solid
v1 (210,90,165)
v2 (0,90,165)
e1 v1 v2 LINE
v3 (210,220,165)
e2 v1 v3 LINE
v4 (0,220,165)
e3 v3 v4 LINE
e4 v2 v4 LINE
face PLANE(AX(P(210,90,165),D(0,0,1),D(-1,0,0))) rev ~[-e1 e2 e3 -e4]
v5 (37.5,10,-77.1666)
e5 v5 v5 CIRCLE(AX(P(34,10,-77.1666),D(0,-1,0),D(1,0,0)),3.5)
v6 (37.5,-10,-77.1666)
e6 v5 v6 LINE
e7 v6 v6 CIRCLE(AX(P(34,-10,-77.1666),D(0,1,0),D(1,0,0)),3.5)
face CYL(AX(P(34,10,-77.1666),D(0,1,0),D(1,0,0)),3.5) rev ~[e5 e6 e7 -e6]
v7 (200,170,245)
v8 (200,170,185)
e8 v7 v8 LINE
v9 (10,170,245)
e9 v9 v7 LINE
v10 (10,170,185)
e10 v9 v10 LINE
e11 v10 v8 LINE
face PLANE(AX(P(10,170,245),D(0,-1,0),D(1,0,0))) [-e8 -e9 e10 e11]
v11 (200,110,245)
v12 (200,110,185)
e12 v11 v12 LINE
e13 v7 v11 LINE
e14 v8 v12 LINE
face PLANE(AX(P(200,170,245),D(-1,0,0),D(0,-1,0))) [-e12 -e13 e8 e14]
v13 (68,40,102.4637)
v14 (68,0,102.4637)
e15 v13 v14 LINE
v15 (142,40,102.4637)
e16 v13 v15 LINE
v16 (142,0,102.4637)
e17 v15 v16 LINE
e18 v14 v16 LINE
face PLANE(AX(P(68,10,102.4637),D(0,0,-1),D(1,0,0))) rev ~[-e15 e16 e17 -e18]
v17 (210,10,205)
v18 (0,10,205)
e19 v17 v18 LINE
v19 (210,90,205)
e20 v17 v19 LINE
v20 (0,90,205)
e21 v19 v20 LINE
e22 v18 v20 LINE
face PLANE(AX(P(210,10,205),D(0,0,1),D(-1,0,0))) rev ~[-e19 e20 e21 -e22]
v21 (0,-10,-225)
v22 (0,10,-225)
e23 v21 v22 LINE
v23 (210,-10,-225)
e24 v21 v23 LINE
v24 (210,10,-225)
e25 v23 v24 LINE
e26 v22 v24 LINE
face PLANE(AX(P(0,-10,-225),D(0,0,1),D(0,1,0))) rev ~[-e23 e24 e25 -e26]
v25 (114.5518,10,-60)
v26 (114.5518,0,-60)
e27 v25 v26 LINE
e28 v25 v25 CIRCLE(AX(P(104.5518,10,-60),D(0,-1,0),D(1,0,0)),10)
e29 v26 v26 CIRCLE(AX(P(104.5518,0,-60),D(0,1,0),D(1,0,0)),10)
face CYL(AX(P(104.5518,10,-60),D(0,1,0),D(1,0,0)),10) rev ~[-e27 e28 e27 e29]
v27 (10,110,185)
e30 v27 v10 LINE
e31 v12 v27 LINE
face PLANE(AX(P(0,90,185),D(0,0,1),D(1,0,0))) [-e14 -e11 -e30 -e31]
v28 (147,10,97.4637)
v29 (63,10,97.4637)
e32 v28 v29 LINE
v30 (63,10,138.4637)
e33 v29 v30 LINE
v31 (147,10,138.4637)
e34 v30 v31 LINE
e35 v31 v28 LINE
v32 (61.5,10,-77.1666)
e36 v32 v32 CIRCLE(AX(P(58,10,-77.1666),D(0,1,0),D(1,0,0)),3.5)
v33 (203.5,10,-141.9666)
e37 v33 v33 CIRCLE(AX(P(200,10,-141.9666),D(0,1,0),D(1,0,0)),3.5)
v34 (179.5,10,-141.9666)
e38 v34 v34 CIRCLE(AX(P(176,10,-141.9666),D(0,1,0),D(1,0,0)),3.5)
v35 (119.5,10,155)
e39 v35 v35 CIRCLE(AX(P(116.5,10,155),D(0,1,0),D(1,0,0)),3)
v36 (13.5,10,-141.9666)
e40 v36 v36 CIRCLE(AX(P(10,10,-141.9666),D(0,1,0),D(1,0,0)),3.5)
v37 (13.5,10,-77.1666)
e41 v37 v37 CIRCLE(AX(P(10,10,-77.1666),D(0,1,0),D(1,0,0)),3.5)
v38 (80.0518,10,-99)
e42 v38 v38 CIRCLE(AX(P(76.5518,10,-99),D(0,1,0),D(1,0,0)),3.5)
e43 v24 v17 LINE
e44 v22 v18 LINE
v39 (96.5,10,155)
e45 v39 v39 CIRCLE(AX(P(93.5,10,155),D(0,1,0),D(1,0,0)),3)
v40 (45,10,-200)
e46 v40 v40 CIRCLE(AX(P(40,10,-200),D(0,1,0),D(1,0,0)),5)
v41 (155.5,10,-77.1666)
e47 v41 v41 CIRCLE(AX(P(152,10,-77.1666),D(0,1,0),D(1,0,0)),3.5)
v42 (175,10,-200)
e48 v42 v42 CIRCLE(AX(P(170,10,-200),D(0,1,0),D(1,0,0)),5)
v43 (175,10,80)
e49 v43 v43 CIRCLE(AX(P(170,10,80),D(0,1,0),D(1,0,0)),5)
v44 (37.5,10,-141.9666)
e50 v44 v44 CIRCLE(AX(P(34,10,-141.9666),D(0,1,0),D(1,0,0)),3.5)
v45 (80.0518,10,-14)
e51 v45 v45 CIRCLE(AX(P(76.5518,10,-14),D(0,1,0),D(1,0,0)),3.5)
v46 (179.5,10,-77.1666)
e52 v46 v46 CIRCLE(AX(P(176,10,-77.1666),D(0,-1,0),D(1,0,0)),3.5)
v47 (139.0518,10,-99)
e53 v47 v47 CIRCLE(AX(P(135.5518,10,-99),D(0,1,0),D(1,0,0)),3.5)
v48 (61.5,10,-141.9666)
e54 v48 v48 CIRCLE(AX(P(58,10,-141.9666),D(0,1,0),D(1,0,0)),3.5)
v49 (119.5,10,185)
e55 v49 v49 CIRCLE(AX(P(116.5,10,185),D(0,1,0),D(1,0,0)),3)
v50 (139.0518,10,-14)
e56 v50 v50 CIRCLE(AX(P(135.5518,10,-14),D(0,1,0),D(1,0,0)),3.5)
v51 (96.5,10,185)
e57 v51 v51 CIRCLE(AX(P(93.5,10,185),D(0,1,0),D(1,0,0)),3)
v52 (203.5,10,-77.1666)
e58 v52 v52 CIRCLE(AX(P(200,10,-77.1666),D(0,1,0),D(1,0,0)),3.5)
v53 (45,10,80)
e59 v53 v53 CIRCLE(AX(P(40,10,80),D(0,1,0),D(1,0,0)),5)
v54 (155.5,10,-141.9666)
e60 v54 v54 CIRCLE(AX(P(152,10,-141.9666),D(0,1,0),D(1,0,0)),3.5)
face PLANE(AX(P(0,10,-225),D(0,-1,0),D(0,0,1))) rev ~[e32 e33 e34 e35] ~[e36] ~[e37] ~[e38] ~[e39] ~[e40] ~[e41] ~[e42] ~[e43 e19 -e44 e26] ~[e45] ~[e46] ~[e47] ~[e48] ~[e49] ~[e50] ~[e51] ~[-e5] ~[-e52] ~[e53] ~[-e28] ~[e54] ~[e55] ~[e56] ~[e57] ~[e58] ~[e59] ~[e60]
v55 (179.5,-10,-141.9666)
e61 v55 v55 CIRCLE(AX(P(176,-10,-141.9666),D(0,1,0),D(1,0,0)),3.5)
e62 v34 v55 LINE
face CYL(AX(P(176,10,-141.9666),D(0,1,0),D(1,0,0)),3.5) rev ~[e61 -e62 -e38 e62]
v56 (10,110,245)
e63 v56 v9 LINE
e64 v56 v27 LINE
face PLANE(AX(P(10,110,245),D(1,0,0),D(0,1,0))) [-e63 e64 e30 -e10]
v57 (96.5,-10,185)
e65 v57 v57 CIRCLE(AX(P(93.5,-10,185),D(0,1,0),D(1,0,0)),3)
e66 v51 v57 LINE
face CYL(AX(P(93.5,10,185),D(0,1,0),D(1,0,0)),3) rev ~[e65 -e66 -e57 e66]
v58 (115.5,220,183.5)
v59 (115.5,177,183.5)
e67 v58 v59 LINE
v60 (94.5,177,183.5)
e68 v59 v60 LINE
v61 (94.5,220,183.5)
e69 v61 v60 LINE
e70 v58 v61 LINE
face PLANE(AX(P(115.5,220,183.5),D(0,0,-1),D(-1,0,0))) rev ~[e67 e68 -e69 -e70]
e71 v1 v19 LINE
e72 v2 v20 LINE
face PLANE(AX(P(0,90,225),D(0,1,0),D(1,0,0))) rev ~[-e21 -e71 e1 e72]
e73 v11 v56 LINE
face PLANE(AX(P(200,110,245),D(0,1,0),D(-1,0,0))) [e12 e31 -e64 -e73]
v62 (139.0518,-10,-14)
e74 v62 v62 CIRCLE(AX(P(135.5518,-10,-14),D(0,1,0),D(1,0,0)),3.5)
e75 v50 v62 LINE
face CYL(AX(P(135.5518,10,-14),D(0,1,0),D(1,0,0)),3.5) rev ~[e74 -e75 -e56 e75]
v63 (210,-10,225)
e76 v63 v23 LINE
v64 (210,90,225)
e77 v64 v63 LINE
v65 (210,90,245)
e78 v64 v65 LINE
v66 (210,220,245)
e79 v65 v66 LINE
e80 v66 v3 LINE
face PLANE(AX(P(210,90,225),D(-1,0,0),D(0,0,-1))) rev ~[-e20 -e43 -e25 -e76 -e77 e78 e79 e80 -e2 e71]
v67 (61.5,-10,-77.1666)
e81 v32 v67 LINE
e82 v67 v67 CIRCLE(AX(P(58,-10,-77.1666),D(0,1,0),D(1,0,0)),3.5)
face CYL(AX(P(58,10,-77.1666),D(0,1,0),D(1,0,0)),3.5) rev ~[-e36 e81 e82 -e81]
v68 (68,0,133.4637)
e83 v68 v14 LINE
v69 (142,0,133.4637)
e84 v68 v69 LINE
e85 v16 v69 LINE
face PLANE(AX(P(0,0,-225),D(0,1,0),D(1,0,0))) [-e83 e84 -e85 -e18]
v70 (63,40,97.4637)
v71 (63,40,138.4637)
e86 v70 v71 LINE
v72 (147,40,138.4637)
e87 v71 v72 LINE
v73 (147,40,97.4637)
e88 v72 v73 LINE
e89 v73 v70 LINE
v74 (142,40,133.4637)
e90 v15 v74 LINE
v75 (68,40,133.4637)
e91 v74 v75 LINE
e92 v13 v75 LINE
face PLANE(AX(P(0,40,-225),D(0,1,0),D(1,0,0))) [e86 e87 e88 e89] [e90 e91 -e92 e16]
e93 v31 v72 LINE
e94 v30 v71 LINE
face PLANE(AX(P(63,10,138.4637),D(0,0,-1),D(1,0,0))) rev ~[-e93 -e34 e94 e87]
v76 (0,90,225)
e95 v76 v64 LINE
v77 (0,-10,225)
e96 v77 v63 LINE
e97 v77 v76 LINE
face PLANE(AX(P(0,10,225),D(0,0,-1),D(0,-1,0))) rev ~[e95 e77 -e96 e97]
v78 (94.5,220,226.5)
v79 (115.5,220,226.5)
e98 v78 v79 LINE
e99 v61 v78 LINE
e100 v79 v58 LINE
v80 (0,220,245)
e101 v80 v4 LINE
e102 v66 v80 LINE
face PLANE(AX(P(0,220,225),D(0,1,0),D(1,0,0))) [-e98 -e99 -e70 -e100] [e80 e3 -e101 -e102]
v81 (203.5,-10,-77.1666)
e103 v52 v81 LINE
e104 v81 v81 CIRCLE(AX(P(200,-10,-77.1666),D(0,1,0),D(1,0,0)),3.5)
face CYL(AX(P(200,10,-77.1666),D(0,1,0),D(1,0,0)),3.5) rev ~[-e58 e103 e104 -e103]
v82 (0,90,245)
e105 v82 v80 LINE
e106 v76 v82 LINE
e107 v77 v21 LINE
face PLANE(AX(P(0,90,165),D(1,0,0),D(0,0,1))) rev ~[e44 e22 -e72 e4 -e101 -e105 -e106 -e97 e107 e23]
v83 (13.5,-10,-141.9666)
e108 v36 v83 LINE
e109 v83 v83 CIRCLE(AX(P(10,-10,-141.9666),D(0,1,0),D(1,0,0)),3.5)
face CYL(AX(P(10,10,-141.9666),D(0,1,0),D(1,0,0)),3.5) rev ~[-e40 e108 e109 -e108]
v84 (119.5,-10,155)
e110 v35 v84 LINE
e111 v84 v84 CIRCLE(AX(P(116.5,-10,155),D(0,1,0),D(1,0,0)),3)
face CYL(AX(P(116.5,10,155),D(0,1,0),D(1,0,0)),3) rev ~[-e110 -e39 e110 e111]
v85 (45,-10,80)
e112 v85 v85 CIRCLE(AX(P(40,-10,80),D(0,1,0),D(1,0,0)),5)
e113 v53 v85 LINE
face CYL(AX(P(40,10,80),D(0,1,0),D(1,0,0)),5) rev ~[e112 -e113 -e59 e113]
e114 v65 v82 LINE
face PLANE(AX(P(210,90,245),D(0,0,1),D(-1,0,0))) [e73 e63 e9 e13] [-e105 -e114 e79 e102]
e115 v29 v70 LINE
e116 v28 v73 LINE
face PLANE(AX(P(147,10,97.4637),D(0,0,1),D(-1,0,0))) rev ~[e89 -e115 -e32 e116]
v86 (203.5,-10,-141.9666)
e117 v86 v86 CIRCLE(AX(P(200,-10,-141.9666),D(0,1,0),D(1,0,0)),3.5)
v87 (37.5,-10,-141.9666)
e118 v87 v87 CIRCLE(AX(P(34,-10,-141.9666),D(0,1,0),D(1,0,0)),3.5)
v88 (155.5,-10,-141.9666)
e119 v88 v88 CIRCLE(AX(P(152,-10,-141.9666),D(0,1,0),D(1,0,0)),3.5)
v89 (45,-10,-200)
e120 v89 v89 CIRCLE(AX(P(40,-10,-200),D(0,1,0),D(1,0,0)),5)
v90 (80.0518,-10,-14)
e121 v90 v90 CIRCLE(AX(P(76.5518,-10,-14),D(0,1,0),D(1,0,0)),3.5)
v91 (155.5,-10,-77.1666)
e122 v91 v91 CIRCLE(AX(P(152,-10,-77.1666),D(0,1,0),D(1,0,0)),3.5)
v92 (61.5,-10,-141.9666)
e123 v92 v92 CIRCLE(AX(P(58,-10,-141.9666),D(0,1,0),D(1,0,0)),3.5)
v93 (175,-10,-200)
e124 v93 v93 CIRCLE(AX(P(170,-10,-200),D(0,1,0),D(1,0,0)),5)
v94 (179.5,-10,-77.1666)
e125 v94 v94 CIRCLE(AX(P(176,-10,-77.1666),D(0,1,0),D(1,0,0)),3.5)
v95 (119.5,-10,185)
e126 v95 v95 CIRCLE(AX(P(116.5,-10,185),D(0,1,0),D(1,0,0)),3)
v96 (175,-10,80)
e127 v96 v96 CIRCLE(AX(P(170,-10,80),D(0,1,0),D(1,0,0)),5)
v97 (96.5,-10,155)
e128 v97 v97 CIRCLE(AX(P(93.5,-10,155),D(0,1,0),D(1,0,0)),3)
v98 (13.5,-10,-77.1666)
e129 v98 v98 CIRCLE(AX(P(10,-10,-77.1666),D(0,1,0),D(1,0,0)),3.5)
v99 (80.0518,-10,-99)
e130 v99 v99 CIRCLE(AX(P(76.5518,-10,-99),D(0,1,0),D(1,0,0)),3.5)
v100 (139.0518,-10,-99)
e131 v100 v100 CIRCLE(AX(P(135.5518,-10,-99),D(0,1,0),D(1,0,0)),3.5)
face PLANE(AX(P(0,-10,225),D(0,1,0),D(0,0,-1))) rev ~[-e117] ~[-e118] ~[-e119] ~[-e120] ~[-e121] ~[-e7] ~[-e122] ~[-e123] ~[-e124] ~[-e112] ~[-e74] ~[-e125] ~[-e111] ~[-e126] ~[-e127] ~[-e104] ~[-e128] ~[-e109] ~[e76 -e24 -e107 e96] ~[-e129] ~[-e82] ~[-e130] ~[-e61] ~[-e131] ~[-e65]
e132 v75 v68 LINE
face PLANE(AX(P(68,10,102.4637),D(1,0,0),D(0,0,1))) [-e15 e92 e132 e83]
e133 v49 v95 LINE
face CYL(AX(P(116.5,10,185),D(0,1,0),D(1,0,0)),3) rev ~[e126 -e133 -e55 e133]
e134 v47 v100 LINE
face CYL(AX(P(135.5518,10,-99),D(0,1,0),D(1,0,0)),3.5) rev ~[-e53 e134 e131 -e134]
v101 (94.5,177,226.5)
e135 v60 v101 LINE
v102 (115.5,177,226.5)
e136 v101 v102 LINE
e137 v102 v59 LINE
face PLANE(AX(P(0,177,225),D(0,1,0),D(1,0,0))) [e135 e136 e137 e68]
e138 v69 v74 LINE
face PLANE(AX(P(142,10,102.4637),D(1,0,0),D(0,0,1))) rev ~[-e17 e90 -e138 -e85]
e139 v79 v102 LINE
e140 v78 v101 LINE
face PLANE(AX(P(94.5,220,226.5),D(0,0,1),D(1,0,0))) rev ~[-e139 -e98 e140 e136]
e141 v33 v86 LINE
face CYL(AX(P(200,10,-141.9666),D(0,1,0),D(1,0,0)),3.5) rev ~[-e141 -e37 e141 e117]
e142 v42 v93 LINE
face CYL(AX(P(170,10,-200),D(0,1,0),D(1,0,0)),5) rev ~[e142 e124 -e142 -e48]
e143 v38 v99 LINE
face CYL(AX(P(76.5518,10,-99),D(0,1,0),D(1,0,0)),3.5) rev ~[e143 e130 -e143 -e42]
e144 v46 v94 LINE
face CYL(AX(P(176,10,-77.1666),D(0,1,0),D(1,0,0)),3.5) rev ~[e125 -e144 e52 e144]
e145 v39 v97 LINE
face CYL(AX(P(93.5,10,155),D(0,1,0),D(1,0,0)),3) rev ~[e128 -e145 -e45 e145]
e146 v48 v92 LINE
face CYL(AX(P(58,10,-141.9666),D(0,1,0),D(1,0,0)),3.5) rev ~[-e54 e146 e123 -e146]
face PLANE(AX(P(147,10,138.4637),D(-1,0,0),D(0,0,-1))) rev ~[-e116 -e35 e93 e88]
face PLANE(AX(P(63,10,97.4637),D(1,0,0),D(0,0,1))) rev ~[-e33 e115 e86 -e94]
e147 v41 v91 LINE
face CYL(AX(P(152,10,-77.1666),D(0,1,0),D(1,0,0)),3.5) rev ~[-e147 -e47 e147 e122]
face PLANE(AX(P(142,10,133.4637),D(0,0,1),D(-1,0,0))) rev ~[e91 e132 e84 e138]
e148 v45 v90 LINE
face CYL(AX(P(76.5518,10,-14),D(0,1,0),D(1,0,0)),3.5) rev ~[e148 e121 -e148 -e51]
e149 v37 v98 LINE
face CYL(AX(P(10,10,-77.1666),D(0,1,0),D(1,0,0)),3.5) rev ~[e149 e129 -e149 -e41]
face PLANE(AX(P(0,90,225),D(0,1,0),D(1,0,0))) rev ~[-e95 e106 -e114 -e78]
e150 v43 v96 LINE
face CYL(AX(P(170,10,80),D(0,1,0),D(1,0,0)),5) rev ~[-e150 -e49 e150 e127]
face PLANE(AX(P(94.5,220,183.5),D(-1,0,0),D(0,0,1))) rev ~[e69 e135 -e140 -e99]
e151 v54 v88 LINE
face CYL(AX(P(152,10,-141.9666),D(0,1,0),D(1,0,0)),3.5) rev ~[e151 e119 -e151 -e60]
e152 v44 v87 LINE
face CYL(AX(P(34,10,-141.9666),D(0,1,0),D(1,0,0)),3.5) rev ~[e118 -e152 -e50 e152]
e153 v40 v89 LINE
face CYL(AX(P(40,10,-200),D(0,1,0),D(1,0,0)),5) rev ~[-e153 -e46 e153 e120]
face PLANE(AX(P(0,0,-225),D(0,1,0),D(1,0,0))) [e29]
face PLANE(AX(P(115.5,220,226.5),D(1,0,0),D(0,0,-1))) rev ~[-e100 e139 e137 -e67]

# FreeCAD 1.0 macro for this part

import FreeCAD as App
import Part
import Sketcher

V = App.Vector

doc = App.newDocument("Part")
params = doc.addObject("Spreadsheet::Sheet", "Params")
for row, (alias, value) in enumerate([
    ("sketch1_width", "20 mm"),
    ("sketch1_height", "450 mm"),
    ("pad1_length", "210 mm"),
    ("sketch2_height", "20 mm"),
    ("sketch2_width", "210 mm"),
    ("pad2_length", "80 mm"),
    ("sketch3_width", "210 mm"),
    ("sketch3_height", "80 mm"),
    ("pad3_length", "130 mm"),
    ("sketch4_width", "190 mm"),
    ("sketch4_height", "60 mm"),
    ("pocket1_length", "60 mm"),
    ("sketch5_width", "21 mm"),
    ("sketch5_height", "43 mm"),
    ("pocket2_length", "43 mm"),
    ("sketch6_diameter", "10 mm"),
    ("pocket3_length", "43 mm"),
    ("sketch7_diameter", "20 mm"),
    ("pocket4_length", "10 mm"),
    ("sketch8_diameter", "7 mm"),
    ("pocket5_length", "20 mm"),
    ("sketch9_diameter", "6 mm"),
    ("pocket6_length", "20 mm"),
    ("sketch10_width", "74 mm"),
    ("sketch10_height", "31 mm"),
    ("pocket7_length", "10 mm"),
    ("sketch11_width", "84 mm"),
    ("sketch11_height", "41 mm"),
    ("sketch11_width2", "74 mm"),
    ("sketch11_height2", "31 mm"),
    ("pad4_length", "30 mm"),
    ("sketch12_diameter", "7 mm"),
    ("pocket8_length", "30 mm"),
], start=1):
    params.set(f"A{row}", alias)
    params.set(f"B{row}", "=" + value)
    params.setAlias(f"B{row}", alias)

body = doc.addObject("PartDesign::Body", "Body")

# Sketch on YZ plane
sketch1 = doc.addObject("Sketcher::SketchObject", "Sketch")
body.addObject(sketch1)
sketch1.AttachmentSupport = (doc.YZ_Plane, [""])
sketch1.MapMode = "FlatFace"
sketch1.addGeometry([
    Part.LineSegment(V(10, -225, 0), V(10, 225, 0)),
    Part.LineSegment(V(10, 225, 0), V(-10, 225, 0)),
    Part.LineSegment(V(-10, 225, 0), V(-10, -225, 0)),
    Part.LineSegment(V(-10, -225, 0), V(10, -225, 0)),
], False)
sketch1.addConstraint([
    Sketcher.Constraint("Coincident", 0, 2, 1, 1),
    Sketcher.Constraint("Coincident", 1, 2, 2, 1),
    Sketcher.Constraint("Coincident", 2, 2, 3, 1),
    Sketcher.Constraint("Coincident", 3, 2, 0, 1),
    Sketcher.Constraint("Vertical", 0),
    Sketcher.Constraint("Horizontal", 1),
    Sketcher.Constraint("Vertical", 2),
    Sketcher.Constraint("Horizontal", 3),
    Sketcher.Constraint("Symmetric", 0, 2, 2, 2, -1, 1),
    Sketcher.Constraint("DistanceX", 1, 2, 1, 1, 20.0),
    Sketcher.Constraint("DistanceY", 0, 1, 0, 2, 450.0),
])
sketch1.setExpression("Constraints[9]", "Params.sketch1_width")
sketch1.setExpression("Constraints[10]", "Params.sketch1_height")
pad1 = doc.addObject("PartDesign::Pad", "Pad")
body.addObject(pad1)
pad1.Profile = sketch1
pad1.setExpression("Length", "Params.pad1_length")

# Sketch on XZ plane
sketch2 = doc.addObject("Sketcher::SketchObject", "Sketch001")
body.addObject(sketch2)
sketch2.AttachmentSupport = (doc.XZ_Plane, [""])
sketch2.MapMode = "FlatFace"
sketch2.AttachmentOffset = App.Placement(V(0, 0, -10), App.Rotation())
sketch2.addGeometry([
    Part.LineSegment(V(0, 205, 0), V(0, 225, 0)),
    Part.LineSegment(V(0, 225, 0), V(210, 225, 0)),
    Part.LineSegment(V(210, 225, 0), V(210, 205, 0)),
    Part.LineSegment(V(210, 205, 0), V(0, 205, 0)),
], False)
sketch2.addConstraint([
    Sketcher.Constraint("Coincident", 0, 2, 1, 1),
    Sketcher.Constraint("Coincident", 1, 2, 2, 1),
    Sketcher.Constraint("Coincident", 2, 2, 3, 1),
    Sketcher.Constraint("Coincident", 3, 2, 0, 1),
    Sketcher.Constraint("Vertical", 0),
    Sketcher.Constraint("Horizontal", 1),
    Sketcher.Constraint("Vertical", 2),
    Sketcher.Constraint("Horizontal", 3),
    Sketcher.Constraint("PointOnObject", 0, 2, -2),
    Sketcher.Constraint("DistanceY", 0, 1, 0, 2, 20.0),
    Sketcher.Constraint("DistanceX", 1, 1, 1, 2, 210.0),
    Sketcher.Constraint("DistanceY", -1, 1, 0, 2, 225.0),
])
sketch2.setExpression("Constraints[9]", "Params.sketch2_height")
sketch2.setExpression("Constraints[10]", "Params.sketch2_width")
pad2 = doc.addObject("PartDesign::Pad", "Pad001")
body.addObject(pad2)
pad2.Profile = sketch2
pad2.setExpression("Length", "Params.pad2_length")
pad2.Reversed = True

# Sketch on XZ plane
sketch3 = doc.addObject("Sketcher::SketchObject", "Sketch002")
body.addObject(sketch3)
sketch3.AttachmentSupport = (doc.XZ_Plane, [""])
sketch3.MapMode = "FlatFace"
sketch3.AttachmentOffset = App.Placement(V(0, 0, -90), App.Rotation())
sketch3.addGeometry([
    Part.LineSegment(V(0, 165, 0), V(0, 245, 0)),
    Part.LineSegment(V(0, 245, 0), V(210, 245, 0)),
    Part.LineSegment(V(210, 245, 0), V(210, 165, 0)),
    Part.LineSegment(V(210, 165, 0), V(0, 165, 0)),
], False)
sketch3.addConstraint([
    Sketcher.Constraint("Coincident", 0, 2, 1, 1),
    Sketcher.Constraint("Coincident", 1, 2, 2, 1),
    Sketcher.Constraint("Coincident", 2, 2, 3, 1),
    Sketcher.Constraint("Coincident", 3, 2, 0, 1),
    Sketcher.Constraint("Vertical", 0),
    Sketcher.Constraint("Horizontal", 1),
    Sketcher.Constraint("Vertical", 2),
    Sketcher.Constraint("Horizontal", 3),
    Sketcher.Constraint("PointOnObject", 0, 2, -2),
    Sketcher.Constraint("DistanceX", 1, 1, 1, 2, 210.0),
    Sketcher.Constraint("DistanceY", 0, 1, 0, 2, 80.0),
    Sketcher.Constraint("DistanceY", -1, 1, 0, 2, 245.0),
])
sketch3.setExpression("Constraints[9]", "Params.sketch3_width")
sketch3.setExpression("Constraints[10]", "Params.sketch3_height")
pad3 = doc.addObject("PartDesign::Pad", "Pad002")
body.addObject(pad3)
pad3.Profile = sketch3
pad3.setExpression("Length", "Params.pad3_length")
pad3.Reversed = True

# Sketch on XY plane
sketch4 = doc.addObject("Sketcher::SketchObject", "Sketch003")
body.addObject(sketch4)
sketch4.AttachmentSupport = (doc.XY_Plane, [""])
sketch4.MapMode = "FlatFace"
sketch4.AttachmentOffset = App.Placement(V(0, 0, 245), App.Rotation())
sketch4.addGeometry([
    Part.LineSegment(V(200, 170, 0), V(10, 170, 0)),
    Part.LineSegment(V(10, 170, 0), V(10, 110, 0)),
    Part.LineSegment(V(10, 110, 0), V(200, 110, 0)),
    Part.LineSegment(V(200, 110, 0), V(200, 170, 0)),
], False)
sketch4.addConstraint([
    Sketcher.Constraint("Coincident", 0, 2, 1, 1),
    Sketcher.Constraint("Coincident", 1, 2, 2, 1),
    Sketcher.Constraint("Coincident", 2, 2, 3, 1),
    Sketcher.Constraint("Coincident", 3, 2, 0, 1),
    Sketcher.Constraint("Horizontal", 0),
    Sketcher.Constraint("Vertical", 1),
    Sketcher.Constraint("Horizontal", 2),
    Sketcher.Constraint("Vertical", 3),
    Sketcher.Constraint("DistanceX", 0, 2, 0, 1, 190.0),
    Sketcher.Constraint("DistanceY", 1, 2, 1, 1, 60.0),
    Sketcher.Constraint("DistanceX", -1, 1, 0, 2, 10.0),
    Sketcher.Constraint("DistanceY", -1, 1, 0, 2, 170.0),
])
sketch4.setExpression("Constraints[8]", "Params.sketch4_width")
sketch4.setExpression("Constraints[9]", "Params.sketch4_height")
pocket1 = doc.addObject("PartDesign::Pocket", "Pocket")
body.addObject(pocket1)
pocket1.Profile = sketch4
pocket1.setExpression("Length", "Params.pocket1_length")

# Sketch on XZ plane
sketch5 = doc.addObject("Sketcher::SketchObject", "Sketch004")
body.addObject(sketch5)
sketch5.AttachmentSupport = (doc.XZ_Plane, [""])
sketch5.MapMode = "FlatFace"
sketch5.AttachmentOffset = App.Placement(V(0, 0, -220), App.Rotation())
sketch5.addGeometry([
    Part.LineSegment(V(94, 184, 0), V(94, 226, 0)),
    Part.LineSegment(V(94, 226, 0), V(116, 226, 0)),
    Part.LineSegment(V(116, 226, 0), V(116, 184, 0)),
    Part.LineSegment(V(116, 184, 0), V(94, 184, 0)),
], False)
sketch5.addConstraint([
    Sketcher.Constraint("Coincident", 0, 2, 1, 1),
    Sketcher.Constraint("Coincident", 1, 2, 2, 1),
    Sketcher.Constraint("Coincident", 2, 2, 3, 1),
    Sketcher.Constraint("Coincident", 3, 2, 0, 1),
    Sketcher.Constraint("Vertical", 0),
    Sketcher.Constraint("Horizontal", 1),
    Sketcher.Constraint("Vertical", 2),
    Sketcher.Constraint("Horizontal", 3),
    Sketcher.Constraint("DistanceX", 1, 1, 1, 2, 21.0),
    Sketcher.Constraint("DistanceY", 0, 1, 0, 2, 43.0),
    Sketcher.Constraint("DistanceX", -1, 1, 0, 2, 94.5),
    Sketcher.Constraint("DistanceY", -1, 1, 0, 2, 226.5),
])
sketch5.setExpression("Constraints[8]", "Params.sketch5_width")
sketch5.setExpression("Constraints[9]", "Params.sketch5_height")
pocket2 = doc.addObject("PartDesign::Pocket", "Pocket001")
body.addObject(pocket2)
pocket2.Profile = sketch5
pocket2.setExpression("Length", "Params.pocket2_length")
pocket2.Reversed = True

# Sketch on XZ plane
sketch6 = doc.addObject("Sketcher::SketchObject", "Sketch005")
body.addObject(sketch6)
sketch6.AttachmentSupport = (doc.XZ_Plane, [""])
sketch6.MapMode = "FlatFace"
sketch6.AttachmentOffset = App.Placement(V(0, 0, -10), App.Rotation())
sketch6.addGeometry([
    Part.Circle(V(40, 80, 0), V(0, 0, 1), 5),
    Part.Circle(V(40, -200, 0), V(0, 0, 1), 5),
    Part.Circle(V(170, 80, 0), V(0, 0, 1), 5),
    Part.Circle(V(170, -200, 0), V(0, 0, 1), 5),
], False)
sketch6.addConstraint([
    Sketcher.Constraint("Equal", 0, 1),
    Sketcher.Constraint("Equal", 1, 2),
    Sketcher.Constraint("Equal", 2, 3),
    Sketcher.Constraint("Horizontal", 0, 3, 2, 3),
    Sketcher.Constraint("Horizontal", 1, 3, 3, 3),
    Sketcher.Constraint("Vertical", 0, 3, 1, 3),
    Sketcher.Constraint("Vertical", 2, 3, 3, 3),
    Sketcher.Constraint("Diameter", 0, 10.0),
    Sketcher.Constraint("DistanceX", -1, 1, 0, 3, 40.0),
    Sketcher.Constraint("DistanceY", -1, 1, 0, 3, 80.0),
    Sketcher.Constraint("DistanceY", 1, 3, -1, 1, 200.0),
    Sketcher.Constraint("DistanceX", -1, 1, 2, 3, 170.0),
])
sketch6.setExpression("Constraints[7]", "Params.sketch6_diameter")
pocket3 = doc.addObject("PartDesign::Pocket", "Pocket002")
body.addObject(pocket3)
pocket3.Profile = sketch6
pocket3.setExpression("Length", "Params.pocket3_length")
pocket3.Reversed = True

# Sketch on XZ plane
sketch7 = doc.addObject("Sketcher::SketchObject", "Sketch006")
body.addObject(sketch7)
sketch7.AttachmentSupport = (doc.XZ_Plane, [""])
sketch7.MapMode = "FlatFace"
sketch7.AttachmentOffset = App.Placement(V(0, 0, -10), App.Rotation())
sketch7.addGeometry(Part.Circle(V(105, -60, 0), V(0, 0, 1), 10), False)
sketch7.addConstraint([
    Sketcher.Constraint("Diameter", 0, 20.0),
    Sketcher.Constraint("DistanceY", 0, 3, -1, 1, 60.0),
    Sketcher.Constraint("DistanceX", -1, 1, 0, 3, 104.5518),
])
sketch7.setExpression("Constraints[0]", "Params.sketch7_diameter")
pocket4 = doc.addObject("PartDesign::Pocket", "Pocket003")
body.addObject(pocket4)
pocket4.Profile = sketch7
pocket4.setExpression("Length", "Params.pocket4_length")
pocket4.Reversed = True

# Sketch on XZ plane
sketch8 = doc.addObject("Sketcher::SketchObject", "Sketch007")
body.addObject(sketch8)
sketch8.AttachmentSupport = (doc.XZ_Plane, [""])
sketch8.MapMode = "FlatFace"
sketch8.AttachmentOffset = App.Placement(V(0, 0, -10), App.Rotation())
sketch8.addGeometry([
    Part.Circle(V(135.6, -14, 0), V(0, 0, 1), 3.5),
    Part.Circle(V(135.6, -99, 0), V(0, 0, 1), 3.5),
    Part.Circle(V(76.6, -99, 0), V(0, 0, 1), 3.5),
    Part.Circle(V(76.6, -14, 0), V(0, 0, 1), 3.5),
], False)
sketch8.addConstraint([
    Sketcher.Constraint("Equal", 0, 1),
    Sketcher.Constraint("Equal", 1, 2),
    Sketcher.Constraint("Equal", 2, 3),
    Sketcher.Constraint("Horizontal", 1, 3, 2, 3),
    Sketcher.Constraint("Horizontal", 0, 3, 3, 3),
    Sketcher.Constraint("Vertical", 0, 3, 1, 3),
    Sketcher.Constraint("Vertical", 2, 3, 3, 3),
    Sketcher.Constraint("Diameter", 0, 7.0),
    Sketcher.Constraint("DistanceY", 0, 3, -1, 1, 14.0),
    Sketcher.Constraint("DistanceY", 1, 3, -1, 1, 99.0),
    Sketcher.Constraint("DistanceX", 2, 3, 1, 3, 59.0),
    Sketcher.Constraint("DistanceX", -1, 1, 0, 3, 135.5518),
])
sketch8.setExpression("Constraints[7]", "Params.sketch8_diameter")
pocket5 = doc.addObject("PartDesign::Pocket", "Pocket004")
body.addObject(pocket5)
pocket5.Profile = sketch8
pocket5.setExpression("Length", "Params.pocket5_length")
pocket5.Reversed = True

# Sketch on XZ plane
sketch9 = doc.addObject("Sketcher::SketchObject", "Sketch008")
body.addObject(sketch9)
sketch9.AttachmentSupport = (doc.XZ_Plane, [""])
sketch9.MapMode = "FlatFace"
sketch9.AttachmentOffset = App.Placement(V(0, 0, -10), App.Rotation())
sketch9.addGeometry([
    Part.Circle(V(93.5, 185, 0), V(0, 0, 1), 3),
    Part.Circle(V(116.5, 185, 0), V(0, 0, 1), 3),
    Part.Circle(V(93.5, 155, 0), V(0, 0, 1), 3),
    Part.Circle(V(116.5, 155, 0), V(0, 0, 1), 3),
], False)
sketch9.addConstraint([
    Sketcher.Constraint("Equal", 0, 1),
    Sketcher.Constraint("Equal", 1, 2),
    Sketcher.Constraint("Equal", 2, 3),
    Sketcher.Constraint("Horizontal", 0, 3, 1, 3),
    Sketcher.Constraint("Horizontal", 2, 3, 3, 3),
    Sketcher.Constraint("Vertical", 0, 3, 2, 3),
    Sketcher.Constraint("Vertical", 1, 3, 3, 3),
    Sketcher.Constraint("Diameter", 0, 6.0),
    Sketcher.Constraint("DistanceY", 2, 3, 0, 3, 30.0),
    Sketcher.Constraint("DistanceY", -1, 1, 0, 3, 185.0),
    Sketcher.Constraint("DistanceX", 0, 3, 1, 3, 23.0),
    Sketcher.Constraint("DistanceX", -1, 1, 0, 3, 93.5),
])
sketch9.setExpression("Constraints[7]", "Params.sketch9_diameter")
pocket6 = doc.addObject("PartDesign::Pocket", "Pocket005")
body.addObject(pocket6)
pocket6.Profile = sketch9
pocket6.setExpression("Length", "Params.pocket6_length")
pocket6.Reversed = True

# Sketch on XZ plane
sketch10 = doc.addObject("Sketcher::SketchObject", "Sketch009")
body.addObject(sketch10)
sketch10.AttachmentSupport = (doc.XZ_Plane, [""])
sketch10.MapMode = "FlatFace"
sketch10.AttachmentOffset = App.Placement(V(0, 0, -10), App.Rotation())
sketch10.addGeometry([
    Part.LineSegment(V(68, 133, 0), V(142, 133, 0)),
    Part.LineSegment(V(142, 133, 0), V(142, 102, 0)),
    Part.LineSegment(V(142, 102, 0), V(68, 102, 0)),
    Part.LineSegment(V(68, 102, 0), V(68, 133, 0)),
], False)
sketch10.addConstraint([
    Sketcher.Constraint("Coincident", 0, 2, 1, 1),
    Sketcher.Constraint("Coincident", 1, 2, 2, 1),
    Sketcher.Constraint("Coincident", 2, 2, 3, 1),
    Sketcher.Constraint("Coincident", 3, 2, 0, 1),
    Sketcher.Constraint("Horizontal", 0),
    Sketcher.Constraint("Vertical", 1),
    Sketcher.Constraint("Horizontal", 2),
    Sketcher.Constraint("Vertical", 3),
    Sketcher.Constraint("DistanceX", 0, 1, 0, 2, 74.0),
    Sketcher.Constraint("DistanceY", 1, 2, 1, 1, 31.0),
    Sketcher.Constraint("DistanceX", -1, 1, 0, 2, 142.0),
    Sketcher.Constraint("DistanceY", -1, 1, 0, 2, 133.4637),
])
sketch10.setExpression("Constraints[8]", "Params.sketch10_width")
sketch10.setExpression("Constraints[9]", "Params.sketch10_height")
pocket7 = doc.addObject("PartDesign::Pocket", "Pocket006")
body.addObject(pocket7)
pocket7.Profile = sketch10
pocket7.setExpression("Length", "Params.pocket7_length")
pocket7.Reversed = True

# Sketch on XZ plane
sketch11 = doc.addObject("Sketcher::SketchObject", "Sketch010")
body.addObject(sketch11)
sketch11.AttachmentSupport = (doc.XZ_Plane, [""])
sketch11.MapMode = "FlatFace"
sketch11.AttachmentOffset = App.Placement(V(0, 0, -10), App.Rotation())
sketch11.addGeometry([
    Part.LineSegment(V(63, 97, 0), V(63, 138, 0)),  # 0
    Part.LineSegment(V(63, 138, 0), V(147, 138, 0)),  # 1
    Part.LineSegment(V(147, 138, 0), V(147, 97, 0)),  # 2
    Part.LineSegment(V(147, 97, 0), V(63, 97, 0)),  # 3
    Part.LineSegment(V(142, 102, 0), V(142, 133, 0)),  # 4
    Part.LineSegment(V(142, 133, 0), V(68, 133, 0)),  # 5
    Part.LineSegment(V(68, 133, 0), V(68, 102, 0)),  # 6
    Part.LineSegment(V(68, 102, 0), V(142, 102, 0)),  # 7
], False)
sketch11.addConstraint([
    Sketcher.Constraint("Coincident", 0, 2, 1, 1),
    Sketcher.Constraint("Coincident", 1, 2, 2, 1),
    Sketcher.Constraint("Coincident", 2, 2, 3, 1),
    Sketcher.Constraint("Coincident", 3, 2, 0, 1),
    Sketcher.Constraint("Coincident", 4, 2, 5, 1),
    Sketcher.Constraint("Coincident", 5, 2, 6, 1),
    Sketcher.Constraint("Coincident", 6, 2, 7, 1),
    Sketcher.Constraint("Coincident", 7, 2, 4, 1),
    Sketcher.Constraint("Vertical", 0),
    Sketcher.Constraint("Horizontal", 1),
    Sketcher.Constraint("Vertical", 2),
    Sketcher.Constraint("Horizontal", 3),
    Sketcher.Constraint("Vertical", 4),
    Sketcher.Constraint("Horizontal", 5),
    Sketcher.Constraint("Vertical", 6),
    Sketcher.Constraint("Horizontal", 7),
    Sketcher.Constraint("DistanceX", 1, 1, 1, 2, 84.0),
    Sketcher.Constraint("DistanceY", 0, 1, 0, 2, 41.0),
    Sketcher.Constraint("DistanceX", 5, 2, 5, 1, 74.0),
    Sketcher.Constraint("DistanceY", 4, 1, 4, 2, 31.0),
    Sketcher.Constraint("DistanceX", -1, 1, 0, 2, 63.0),
    Sketcher.Constraint("DistanceX", -1, 1, 4, 2, 142.0),
    Sketcher.Constraint("DistanceY", 4, 2, 1, 2, 5.0),
    Sketcher.Constraint("DistanceY", -1, 1, 0, 2, 138.4637),
])
sketch11.setExpression("Constraints[16]", "Params.sketch11_width")
sketch11.setExpression("Constraints[17]", "Params.sketch11_height")
sketch11.setExpression("Constraints[18]", "Params.sketch11_width2")
sketch11.setExpression("Constraints[19]", "Params.sketch11_height2")
pad4 = doc.addObject("PartDesign::Pad", "Pad003")
body.addObject(pad4)
pad4.Profile = sketch11
pad4.setExpression("Length", "Params.pad4_length")
pad4.Reversed = True

# Sketch on XZ plane
sketch12 = doc.addObject("Sketcher::SketchObject", "Sketch011")
body.addObject(sketch12)
sketch12.AttachmentSupport = (doc.XZ_Plane, [""])
sketch12.MapMode = "FlatFace"
sketch12.AttachmentOffset = App.Placement(V(0, 0, -10), App.Rotation())
sketch12.addGeometry([
    Part.Circle(V(10, -77.2, 0), V(0, 0, 1), 3.5),  # 0
    Part.Circle(V(34, -77.2, 0), V(0, 0, 1), 3.5),  # 1
    Part.Circle(V(58, -77.2, 0), V(0, 0, 1), 3.5),  # 2
    Part.Circle(V(10, -142, 0), V(0, 0, 1), 3.5),  # 3
    Part.Circle(V(34, -142, 0), V(0, 0, 1), 3.5),  # 4
    Part.Circle(V(58, -142, 0), V(0, 0, 1), 3.5),  # 5
    Part.Circle(V(200, -77.2, 0), V(0, 0, 1), 3.5),  # 6
    Part.Circle(V(176, -77.2, 0), V(0, 0, 1), 3.5),  # 7
    Part.Circle(V(152, -77.2, 0), V(0, 0, 1), 3.5),  # 8
    Part.Circle(V(152, -142, 0), V(0, 0, 1), 3.5),  # 9
    Part.Circle(V(176, -142, 0), V(0, 0, 1), 3.5),  # 10
    Part.Circle(V(200, -142, 0), V(0, 0, 1), 3.5),  # 11
], False)
sketch12.addConstraint([
    Sketcher.Constraint("Equal", 0, 1),
    Sketcher.Constraint("Equal", 1, 2),
    Sketcher.Constraint("Equal", 2, 3),
    Sketcher.Constraint("Equal", 3, 4),
    Sketcher.Constraint("Equal", 4, 5),
    Sketcher.Constraint("Equal", 5, 6),
    Sketcher.Constraint("Equal", 6, 7),
    Sketcher.Constraint("Equal", 7, 8),
    Sketcher.Constraint("Equal", 8, 9),
    Sketcher.Constraint("Equal", 9, 10),
    Sketcher.Constraint("Equal", 10, 11),
    Sketcher.Constraint("Horizontal", 0, 3, 1, 3),
    Sketcher.Constraint("Horizontal", 1, 3, 2, 3),
    Sketcher.Constraint("Horizontal", 3, 3, 4, 3),
    Sketcher.Constraint("Horizontal", 4, 3, 5, 3),
    Sketcher.Constraint("Horizontal", 2, 3, 6, 3),
    Sketcher.Constraint("Horizontal", 6, 3, 7, 3),
    Sketcher.Constraint("Horizontal", 7, 3, 8, 3),
    Sketcher.Constraint("Horizontal", 5, 3, 9, 3),
    Sketcher.Constraint("Horizontal", 9, 3, 10, 3),
    Sketcher.Constraint("Horizontal", 10, 3, 11, 3),
    Sketcher.Constraint("Vertical", 0, 3, 3, 3),
    Sketcher.Constraint("Vertical", 1, 3, 4, 3),
    Sketcher.Constraint("Vertical", 2, 3, 5, 3),
    Sketcher.Constraint("Vertical", 8, 3, 9, 3),
    Sketcher.Constraint("Vertical", 7, 3, 10, 3),
    Sketcher.Constraint("Vertical", 6, 3, 11, 3),
    Sketcher.Constraint("Diameter", 0, 7.0),
    Sketcher.Constraint("DistanceX", -1, 1, 0, 3, 10.0),
    Sketcher.Constraint("DistanceX", -1, 1, 1, 3, 34.0),
    Sketcher.Constraint("DistanceX", -1, 1, 2, 3, 58.0),
    Sketcher.Constraint("DistanceX", -1, 1, 6, 3, 200.0),
    Sketcher.Constraint("DistanceX", -1, 1, 7, 3, 176.0),
    Sketcher.Constraint("DistanceX", -1, 1, 8, 3, 152.0),
    Sketcher.Constraint("DistanceY", 3, 3, 0, 3, 64.8),
    Sketcher.Constraint("DistanceY", 0, 3, -1, 1, 77.1666),
])
sketch12.setExpression("Constraints[27]", "Params.sketch12_diameter")
pocket8 = doc.addObject("PartDesign::Pocket", "Pocket007")
body.addObject(pocket8)
pocket8.Profile = sketch12
pocket8.setExpression("Length", "Params.pocket8_length")
pocket8.Reversed = True

doc.recompute()
